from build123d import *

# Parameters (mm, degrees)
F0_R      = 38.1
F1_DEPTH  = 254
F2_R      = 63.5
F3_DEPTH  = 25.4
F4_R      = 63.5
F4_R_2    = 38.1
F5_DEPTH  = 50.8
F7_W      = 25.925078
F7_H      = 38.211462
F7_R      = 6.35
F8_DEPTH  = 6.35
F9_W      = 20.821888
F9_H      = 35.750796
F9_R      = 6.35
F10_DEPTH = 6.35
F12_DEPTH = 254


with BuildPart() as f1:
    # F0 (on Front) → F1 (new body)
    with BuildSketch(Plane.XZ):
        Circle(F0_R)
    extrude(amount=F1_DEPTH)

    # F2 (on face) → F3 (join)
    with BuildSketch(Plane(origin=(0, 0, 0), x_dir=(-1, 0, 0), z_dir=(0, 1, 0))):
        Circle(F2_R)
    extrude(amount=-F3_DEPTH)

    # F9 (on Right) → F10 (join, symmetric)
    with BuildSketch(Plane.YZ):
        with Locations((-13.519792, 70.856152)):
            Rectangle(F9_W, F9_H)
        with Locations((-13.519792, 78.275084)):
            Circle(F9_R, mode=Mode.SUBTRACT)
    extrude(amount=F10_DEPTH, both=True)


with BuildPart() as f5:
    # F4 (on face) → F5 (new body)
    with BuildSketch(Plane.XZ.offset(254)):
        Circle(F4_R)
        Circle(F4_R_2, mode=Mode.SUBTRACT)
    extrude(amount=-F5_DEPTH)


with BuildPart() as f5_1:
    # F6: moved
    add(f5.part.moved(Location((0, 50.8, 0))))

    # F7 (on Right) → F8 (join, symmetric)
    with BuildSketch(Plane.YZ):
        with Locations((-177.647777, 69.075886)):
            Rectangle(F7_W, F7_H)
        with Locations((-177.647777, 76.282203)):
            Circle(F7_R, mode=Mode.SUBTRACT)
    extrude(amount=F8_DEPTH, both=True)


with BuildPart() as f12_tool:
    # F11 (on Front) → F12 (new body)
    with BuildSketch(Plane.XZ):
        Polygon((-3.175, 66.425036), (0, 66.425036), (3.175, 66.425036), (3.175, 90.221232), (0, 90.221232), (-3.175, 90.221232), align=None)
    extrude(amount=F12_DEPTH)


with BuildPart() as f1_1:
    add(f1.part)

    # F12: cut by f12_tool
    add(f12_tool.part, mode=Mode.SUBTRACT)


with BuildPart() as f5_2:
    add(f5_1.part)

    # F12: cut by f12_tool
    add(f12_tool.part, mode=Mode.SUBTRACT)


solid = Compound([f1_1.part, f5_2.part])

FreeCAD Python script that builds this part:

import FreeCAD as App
import Part
import Sketcher

V = App.Vector
Q = App.Units.Quantity


def add_polygon(sketch, points):
    """Adds a closed chain of lines whose ends are joined by coincident constraints."""
    first, n = sketch.GeometryCount, len(points)
    for a, b in zip(points, points[1:] + points[:1]):
        sketch.addGeometry(Part.LineSegment(App.Vector(*a, 0), App.Vector(*b, 0)), False)
    for i in range(n):
        sketch.addConstraint(Sketcher.Constraint("Coincident", first + i, 2, first + (i + 1) % n, 1))

doc = App.newDocument("Part")
body = doc.addObject("PartDesign::Body", "Body")

sketch1 = body.newObject("Sketcher::SketchObject", "Sketch")
sketch1.AttachmentSupport = (doc.getObject("XZ_Plane"), [""])
sketch1.MapMode = "FlatFace"
sketch1.addGeometry(Part.Circle(V(0, 0, 0), V(0, 0, 1), 38), False)
sketch1.addConstraint([
    Sketcher.Constraint("Coincident", 0, 3, -1, 1),
    Sketcher.Constraint("Diameter", 0, Q("3 in")),
])
pad1 = body.newObject("PartDesign::Pad", "Pad")
pad1.Profile = sketch1
pad1.Length = Q("10 in")

sketch2 = body.newObject("Sketcher::SketchObject", "Sketch001")
sketch2.AttachmentSupport = (doc.getObject("XZ_Plane"), [""])
sketch2.MapMode = "FlatFace"
sketch2.addGeometry(Part.Circle(V(0, 0, 0), V(0, 0, 1), 64), False)
sketch2.addConstraint([
    Sketcher.Constraint("Coincident", 0, 3, -1, 1),
    Sketcher.Constraint("Diameter", 0, Q("5 in")),
])
pad2 = body.newObject("PartDesign::Pad", "Pad001")
pad2.Profile = sketch2
pad2.Length = Q("1 in")

sketch3 = body.newObject("Sketcher::SketchObject", "Sketch002")
sketch3.AttachmentSupport = (doc.getObject("YZ_Plane"), [""])
sketch3.MapMode = "FlatFace"
add_polygon(sketch3, [(-24, 89), (-24, 53), (-3, 53), (-3, 89)])
sketch3.addGeometry(Part.Circle(V(-14, 78, 0), V(0, 0, 1), 6), False)
sketch3.addConstraint([
    Sketcher.Constraint("Vertical", 0),
    Sketcher.Constraint("Horizontal", 1),
    Sketcher.Constraint("Vertical", 2),
    Sketcher.Constraint("Horizontal", 3),
    Sketcher.Constraint("Diameter", 4, Q("0.5 in")),
    Sketcher.Constraint("DistanceX", 1, 1, 1, 2, Q("20.821888 mm")),
    Sketcher.Constraint("DistanceY", 0, 2, 0, 1, Q("35.750796 mm")),
    Sketcher.Constraint("DistanceX", 1, 2, -1, 1, Q("3.108848 mm")),
    Sketcher.Constraint("DistanceY", -1, 1, 2, 2, Q("88.73155 mm")),
    Sketcher.Constraint("DistanceY", 0, 2, 4, 3, Q("25.29433 mm")),
    Sketcher.Constraint("DistanceX", 4, 3, -1, 1, Q("13.519792 mm")),
])
pad3 = body.newObject("PartDesign::Pad", "Pad002")
pad3.Profile = sketch3
pad3.Length = Q("0.5 in")
pad3.Midplane = True
body2 = doc.addObject("PartDesign::Body", "Body001")

sketch4 = body2.newObject("Sketcher::SketchObject", "Sketch003")
sketch4.AttachmentSupport = (doc.getObject("XZ_Plane001"), [""])
sketch4.MapMode = "FlatFace"
sketch4.AttachmentOffset = App.Placement(V(0, 0, 10 * 25.4), App.Rotation())
sketch4.addGeometry([
    Part.Circle(V(0, 0, 0), V(0, 0, 1), 64),
    Part.Circle(V(0, 0, 0), V(0, 0, 1), 38),
], False)
sketch4.addConstraint([
    Sketcher.Constraint("Coincident", 0, 3, -1, 1),
    Sketcher.Constraint("Coincident", 1, 3, -1, 1),
    Sketcher.Constraint("Diameter", 0, Q("5 in")),
    Sketcher.Constraint("Diameter", 1, Q("3 in")),
])
pad4 = body2.newObject("PartDesign::Pad", "Pad003")
pad4.Profile = sketch4
pad4.Length = Q("2 in")
pad4.Reversed = True
body3 = doc.addObject("PartDesign::Body", "Body002")
doc.recompute()

body2.Placement = App.Placement(V(0, 50.8, 0), App.Rotation(V(0, 0, 1), 0))
boolean = body3.newObject("PartDesign::Boolean", "Boolean")
boolean.Type = "Fuse"
boolean.addObjects([body2])

sketch5 = body3.newObject("Sketcher::SketchObject", "Sketch004")
sketch5.AttachmentSupport = (doc.getObject("YZ_Plane002"), [""])
sketch5.MapMode = "FlatFace"
add_polygon(sketch5, [(-191, 88), (-191, 50), (-165, 50), (-165, 88)])
sketch5.addGeometry(Part.Circle(V(-178, 76, 0), V(0, 0, 1), 6), False)
sketch5.addConstraint([
    Sketcher.Constraint("Vertical", 0),
    Sketcher.Constraint("Horizontal", 1),
    Sketcher.Constraint("Vertical", 2),
    Sketcher.Constraint("Horizontal", 3),
    Sketcher.Constraint("Diameter", 4, Q("0.5 in")),
    Sketcher.Constraint("DistanceX", 1, 1, 1, 2, Q("25.925078 mm")),
    Sketcher.Constraint("DistanceY", 0, 2, 0, 1, Q("38.211462 mm")),
    Sketcher.Constraint("DistanceX", 1, 2, -1, 1, Q("164.685238 mm")),
    Sketcher.Constraint("DistanceX", 0, 2, 4, 3, Q("12.962539 mm")),
    Sketcher.Constraint("DistanceY", -1, 1, 4, 3, Q("76.282203 mm")),
    Sketcher.Constraint("DistanceY", -1, 1, 0, 2, Q("49.970155 mm")),
])
pad5 = body3.newObject("PartDesign::Pad", "Pad004")
pad5.Profile = sketch5
pad5.Length = Q("0.5 in")
pad5.Midplane = True
body4 = doc.addObject("PartDesign::Body", "Body003")

sketch6 = body4.newObject("Sketcher::SketchObject", "Sketch005")
sketch6.AttachmentSupport = (doc.getObject("XZ_Plane003"), [""])
sketch6.MapMode = "FlatFace"
add_polygon(sketch6, [(-3, 66), (3, 66), (3, 90), (-3, 90)])
sketch6.addConstraint([
    Sketcher.Constraint("Horizontal", 0),
    Sketcher.Constraint("Vertical", 1),
    Sketcher.Constraint("Horizontal", 2),
    Sketcher.Constraint("Vertical", 3),
    Sketcher.Constraint("DistanceX", 0, 1, 0, 2, Q("0.25 in")),
    Sketcher.Constraint("DistanceX", -1, 1, 0, 2, Q("0.125 in")),
    Sketcher.Constraint("DistanceY", 1, 1, 1, 2, Q("23.796196 mm")),
    Sketcher.Constraint("DistanceY", -1, 1, 1, 2, Q("90.221232 mm")),
])
pad6 = body4.newObject("PartDesign::Pad", "Pad005")
pad6.Profile = sketch6
pad6.Length = Q("10 in")
doc.recompute()

body5 = doc.addObject("PartDesign::Body", "Body004")
body5.BaseFeature = body4
boolean2 = body.newObject("PartDesign::Boolean", "Boolean001")
boolean2.Type = "Cut"
boolean2.addObjects([body5])
doc.recompute()

boolean3 = body3.newObject("PartDesign::Boolean", "Boolean002")
boolean3.Type = "Cut"
boolean3.addObjects([body4])

doc.recompute()
